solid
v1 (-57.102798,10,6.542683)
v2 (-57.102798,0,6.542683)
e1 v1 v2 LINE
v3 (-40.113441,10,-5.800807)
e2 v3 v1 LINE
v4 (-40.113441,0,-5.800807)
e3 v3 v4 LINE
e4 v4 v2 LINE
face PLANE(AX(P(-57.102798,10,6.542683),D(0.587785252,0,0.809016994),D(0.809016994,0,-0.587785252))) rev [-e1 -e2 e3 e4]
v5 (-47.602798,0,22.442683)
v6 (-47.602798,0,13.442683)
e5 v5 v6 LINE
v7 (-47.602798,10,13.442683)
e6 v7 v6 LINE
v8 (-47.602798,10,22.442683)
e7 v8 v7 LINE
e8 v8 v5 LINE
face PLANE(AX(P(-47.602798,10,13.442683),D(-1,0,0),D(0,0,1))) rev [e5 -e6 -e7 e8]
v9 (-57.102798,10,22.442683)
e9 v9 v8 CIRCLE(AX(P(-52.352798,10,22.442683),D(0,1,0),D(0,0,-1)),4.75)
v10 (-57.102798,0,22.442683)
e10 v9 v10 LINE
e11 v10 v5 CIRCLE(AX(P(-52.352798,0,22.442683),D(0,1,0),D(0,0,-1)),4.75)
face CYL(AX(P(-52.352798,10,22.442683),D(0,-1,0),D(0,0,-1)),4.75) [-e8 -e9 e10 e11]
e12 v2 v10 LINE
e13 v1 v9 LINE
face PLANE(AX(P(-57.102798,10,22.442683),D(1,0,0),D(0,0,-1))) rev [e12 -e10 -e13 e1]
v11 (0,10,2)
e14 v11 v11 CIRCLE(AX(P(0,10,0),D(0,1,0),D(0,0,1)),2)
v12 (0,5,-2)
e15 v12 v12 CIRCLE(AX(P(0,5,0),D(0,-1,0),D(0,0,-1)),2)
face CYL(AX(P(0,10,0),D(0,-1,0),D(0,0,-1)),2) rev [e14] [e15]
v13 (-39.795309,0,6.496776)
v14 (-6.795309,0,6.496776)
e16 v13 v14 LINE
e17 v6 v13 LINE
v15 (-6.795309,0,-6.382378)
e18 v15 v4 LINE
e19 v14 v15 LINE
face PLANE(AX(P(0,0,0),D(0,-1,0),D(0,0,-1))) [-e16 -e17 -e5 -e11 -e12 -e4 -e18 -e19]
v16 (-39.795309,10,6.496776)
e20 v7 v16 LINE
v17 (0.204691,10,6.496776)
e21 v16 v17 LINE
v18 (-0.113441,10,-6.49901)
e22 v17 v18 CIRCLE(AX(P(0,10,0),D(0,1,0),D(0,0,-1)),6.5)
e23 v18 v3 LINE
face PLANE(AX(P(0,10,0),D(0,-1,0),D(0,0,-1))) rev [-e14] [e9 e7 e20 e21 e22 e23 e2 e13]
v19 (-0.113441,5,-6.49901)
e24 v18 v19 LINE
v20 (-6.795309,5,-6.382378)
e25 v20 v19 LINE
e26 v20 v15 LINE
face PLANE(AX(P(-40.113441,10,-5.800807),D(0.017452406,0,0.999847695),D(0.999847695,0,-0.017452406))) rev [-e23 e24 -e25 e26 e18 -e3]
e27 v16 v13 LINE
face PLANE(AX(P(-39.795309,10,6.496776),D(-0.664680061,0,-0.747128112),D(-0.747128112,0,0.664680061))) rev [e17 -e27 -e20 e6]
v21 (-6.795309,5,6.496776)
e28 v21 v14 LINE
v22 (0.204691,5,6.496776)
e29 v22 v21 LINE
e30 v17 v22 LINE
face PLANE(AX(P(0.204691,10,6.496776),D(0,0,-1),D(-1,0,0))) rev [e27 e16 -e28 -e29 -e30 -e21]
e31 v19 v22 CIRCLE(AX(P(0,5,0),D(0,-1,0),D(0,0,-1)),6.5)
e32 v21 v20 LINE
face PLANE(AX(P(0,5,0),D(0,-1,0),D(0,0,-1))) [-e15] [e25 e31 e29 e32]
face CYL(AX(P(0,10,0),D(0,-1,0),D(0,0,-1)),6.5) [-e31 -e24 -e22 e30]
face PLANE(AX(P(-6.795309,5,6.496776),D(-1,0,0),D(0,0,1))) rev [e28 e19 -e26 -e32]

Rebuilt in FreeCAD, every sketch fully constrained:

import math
import FreeCAD as App
import Part
import Sketcher
Q = App.Units.Quantity

doc = App.newDocument("Part")
body = doc.addObject("PartDesign::Body", "Body")

# Sketch on XZ plane
sketch1 = body.newObject("Sketcher::SketchObject", "Sketch")
sketch1.AttachmentSupport = (doc.getObject("XZ_Plane"), [""])
sketch1.MapMode = "FlatFace"
sketch1.addGeometry(Part.LineSegment(App.Vector(-39.795309, 6.496776, 0), App.Vector(0.204691, 6.496776, 0)), False)
sketch1.addGeometry(Part.ArcOfCircle(Part.Circle(App.Vector(0, 0, 0), App.Vector(0, 0, 1), 6.5), math.radians(-91), math.radians(88.195402)), False)
sketch1.addGeometry(Part.LineSegment(App.Vector(-0.113441, -6.49901, 0), App.Vector(-40.113441, -5.800807, 0)), False)
sketch1.addGeometry(Part.LineSegment(App.Vector(-40.113441, -5.800807, 0), App.Vector(-57.102798, 6.542683, 0)), False)
sketch1.addGeometry(Part.LineSegment(App.Vector(-57.102798, 6.542683, 0), App.Vector(-57.102798, 22.442683, 0)), False)
sketch1.addGeometry(Part.ArcOfCircle(Part.Circle(App.Vector(-52.352798, 22.442683, 0), App.Vector(0, 0, 1), 4.75), math.radians(0), math.radians(180)), False)
sketch1.addGeometry(Part.LineSegment(App.Vector(-47.602798, 22.442683, 0), App.Vector(-47.602798, 13.442683, 0)), False)
sketch1.addGeometry(Part.LineSegment(App.Vector(-47.602798, 13.442683, 0), App.Vector(-39.795309, 6.496776, 0)), False)
sketch1.addGeometry(Part.Circle(App.Vector(0, 0, 0), App.Vector(0, 0, 1), 2), False)
sketch1.addConstraint(Sketcher.Constraint("Coincident", 0, 2, 1, 2))
sketch1.addConstraint(Sketcher.Constraint("Tangent", 1, 1, 2, 1))
sketch1.addConstraint(Sketcher.Constraint("Coincident", 2, 2, 3, 1))
sketch1.addConstraint(Sketcher.Constraint("Coincident", 3, 2, 4, 1))
sketch1.addConstraint(Sketcher.Constraint("Tangent", 4, 2, 5, 2))
sketch1.addConstraint(Sketcher.Constraint("Tangent", 5, 1, 6, 1))
sketch1.addConstraint(Sketcher.Constraint("Coincident", 6, 2, 7, 1))
sketch1.addConstraint(Sketcher.Constraint("Coincident", 7, 2, 0, 1))
sketch1.addConstraint(Sketcher.Constraint("Horizontal", 0))
sketch1.addConstraint(Sketcher.Constraint("Vertical", 4))
sketch1.addConstraint(Sketcher.Constraint("Vertical", 6))
sketch1.addConstraint(Sketcher.Constraint("Coincident", 1, 3, -1, 1))
sketch1.addConstraint(Sketcher.Constraint("Coincident", 8, 3, -1, 1))
sketch1.addConstraint(Sketcher.Constraint("Diameter", 8, 4.0))
sketch1.addConstraint(Sketcher.Constraint("Radius", 1, 6.5))
sketch1.addConstraint(Sketcher.Constraint("DistanceX", 0, 1, 0, 2, 40.0))
sketch1.addConstraint(Sketcher.Constraint("DistanceY", 6, 2, 6, 1, 9.0))
sketch1.addConstraint(Sketcher.Constraint("Angle", 2, Q("179 deg")))
sketch1.addConstraint(Sketcher.Constraint("Angle", 3, Q("144 deg")))
sketch1.addConstraint(Sketcher.Constraint("Radius", 5, 4.75))
sketch1.addConstraint(Sketcher.Constraint("Distance", 3, 21.0))
sketch1.addConstraint(Sketcher.Constraint("DistanceY", 4, 1, 4, 2, 15.9))
sketch1.addConstraint(Sketcher.Constraint("DistanceX", 2, 2, 1, 1, 40.0))
sketch1.addConstraint(Sketcher.Constraint("Distance", 7, 10.45))
pad1 = body.newObject("PartDesign::Pad", "Pad")
pad1.Profile = sketch1
pad1.Length = 10
pad1.Reversed = True

# Sketch on XZ plane
sketch2 = body.newObject("Sketcher::SketchObject", "Sketch001")
sketch2.AttachmentSupport = (doc.getObject("XZ_Plane"), [""])
sketch2.MapMode = "FlatFace"
sketch2.addGeometry(Part.LineSegment(App.Vector(0.204691, 6.496776, 0), App.Vector(-6.795309, 6.496776, 0)), False)
sketch2.addGeometry(Part.LineSegment(App.Vector(-6.795309, 6.496776, 0), App.Vector(-6.795309, -6.382378, 0)), False)
sketch2.addGeometry(Part.LineSegment(App.Vector(-6.795309, -6.382378, 0), App.Vector(-0.113441, -6.49901, 0)), False)
sketch2.addGeometry(Part.ArcOfCircle(Part.Circle(App.Vector(0, 0, 0), App.Vector(0, 0, 1), 6.5), math.radians(-91), math.radians(88.195402)), False)
sketch2.addGeometry(Part.Circle(App.Vector(0, 0, 0), App.Vector(0, 0, 1), 2), False)
sketch2.addConstraint(Sketcher.Constraint("Coincident", 0, 2, 1, 1))
sketch2.addConstraint(Sketcher.Constraint("Coincident", 1, 2, 2, 1))
sketch2.addConstraint(Sketcher.Constraint("Tangent", 2, 2, 3, 1))
sketch2.addConstraint(Sketcher.Constraint("Coincident", 3, 2, 0, 1))
sketch2.addConstraint(Sketcher.Constraint("Horizontal", 0))
sketch2.addConstraint(Sketcher.Constraint("Vertical", 1))
sketch2.addConstraint(Sketcher.Constraint("Coincident", 3, 3, -1, 1))
sketch2.addConstraint(Sketcher.Constraint("Coincident", 4, 3, -1, 1))
sketch2.addConstraint(Sketcher.Constraint("Diameter", 4, 4.0))
sketch2.addConstraint(Sketcher.Constraint("Radius", 3, 6.5))
sketch2.addConstraint(Sketcher.Constraint("DistanceX", 0, 2, 0, 1, 7.0))
sketch2.addConstraint(Sketcher.Constraint("Angle", 2, Q("-1 deg")))
sketch2.addConstraint(Sketcher.Constraint("DistanceY", 1, 2, 1, 1, 12.879154))
pocket1 = body.newObject("PartDesign::Pocket", "Pocket")
pocket1.Profile = sketch2
pocket1.Length = 5

doc.recompute()
